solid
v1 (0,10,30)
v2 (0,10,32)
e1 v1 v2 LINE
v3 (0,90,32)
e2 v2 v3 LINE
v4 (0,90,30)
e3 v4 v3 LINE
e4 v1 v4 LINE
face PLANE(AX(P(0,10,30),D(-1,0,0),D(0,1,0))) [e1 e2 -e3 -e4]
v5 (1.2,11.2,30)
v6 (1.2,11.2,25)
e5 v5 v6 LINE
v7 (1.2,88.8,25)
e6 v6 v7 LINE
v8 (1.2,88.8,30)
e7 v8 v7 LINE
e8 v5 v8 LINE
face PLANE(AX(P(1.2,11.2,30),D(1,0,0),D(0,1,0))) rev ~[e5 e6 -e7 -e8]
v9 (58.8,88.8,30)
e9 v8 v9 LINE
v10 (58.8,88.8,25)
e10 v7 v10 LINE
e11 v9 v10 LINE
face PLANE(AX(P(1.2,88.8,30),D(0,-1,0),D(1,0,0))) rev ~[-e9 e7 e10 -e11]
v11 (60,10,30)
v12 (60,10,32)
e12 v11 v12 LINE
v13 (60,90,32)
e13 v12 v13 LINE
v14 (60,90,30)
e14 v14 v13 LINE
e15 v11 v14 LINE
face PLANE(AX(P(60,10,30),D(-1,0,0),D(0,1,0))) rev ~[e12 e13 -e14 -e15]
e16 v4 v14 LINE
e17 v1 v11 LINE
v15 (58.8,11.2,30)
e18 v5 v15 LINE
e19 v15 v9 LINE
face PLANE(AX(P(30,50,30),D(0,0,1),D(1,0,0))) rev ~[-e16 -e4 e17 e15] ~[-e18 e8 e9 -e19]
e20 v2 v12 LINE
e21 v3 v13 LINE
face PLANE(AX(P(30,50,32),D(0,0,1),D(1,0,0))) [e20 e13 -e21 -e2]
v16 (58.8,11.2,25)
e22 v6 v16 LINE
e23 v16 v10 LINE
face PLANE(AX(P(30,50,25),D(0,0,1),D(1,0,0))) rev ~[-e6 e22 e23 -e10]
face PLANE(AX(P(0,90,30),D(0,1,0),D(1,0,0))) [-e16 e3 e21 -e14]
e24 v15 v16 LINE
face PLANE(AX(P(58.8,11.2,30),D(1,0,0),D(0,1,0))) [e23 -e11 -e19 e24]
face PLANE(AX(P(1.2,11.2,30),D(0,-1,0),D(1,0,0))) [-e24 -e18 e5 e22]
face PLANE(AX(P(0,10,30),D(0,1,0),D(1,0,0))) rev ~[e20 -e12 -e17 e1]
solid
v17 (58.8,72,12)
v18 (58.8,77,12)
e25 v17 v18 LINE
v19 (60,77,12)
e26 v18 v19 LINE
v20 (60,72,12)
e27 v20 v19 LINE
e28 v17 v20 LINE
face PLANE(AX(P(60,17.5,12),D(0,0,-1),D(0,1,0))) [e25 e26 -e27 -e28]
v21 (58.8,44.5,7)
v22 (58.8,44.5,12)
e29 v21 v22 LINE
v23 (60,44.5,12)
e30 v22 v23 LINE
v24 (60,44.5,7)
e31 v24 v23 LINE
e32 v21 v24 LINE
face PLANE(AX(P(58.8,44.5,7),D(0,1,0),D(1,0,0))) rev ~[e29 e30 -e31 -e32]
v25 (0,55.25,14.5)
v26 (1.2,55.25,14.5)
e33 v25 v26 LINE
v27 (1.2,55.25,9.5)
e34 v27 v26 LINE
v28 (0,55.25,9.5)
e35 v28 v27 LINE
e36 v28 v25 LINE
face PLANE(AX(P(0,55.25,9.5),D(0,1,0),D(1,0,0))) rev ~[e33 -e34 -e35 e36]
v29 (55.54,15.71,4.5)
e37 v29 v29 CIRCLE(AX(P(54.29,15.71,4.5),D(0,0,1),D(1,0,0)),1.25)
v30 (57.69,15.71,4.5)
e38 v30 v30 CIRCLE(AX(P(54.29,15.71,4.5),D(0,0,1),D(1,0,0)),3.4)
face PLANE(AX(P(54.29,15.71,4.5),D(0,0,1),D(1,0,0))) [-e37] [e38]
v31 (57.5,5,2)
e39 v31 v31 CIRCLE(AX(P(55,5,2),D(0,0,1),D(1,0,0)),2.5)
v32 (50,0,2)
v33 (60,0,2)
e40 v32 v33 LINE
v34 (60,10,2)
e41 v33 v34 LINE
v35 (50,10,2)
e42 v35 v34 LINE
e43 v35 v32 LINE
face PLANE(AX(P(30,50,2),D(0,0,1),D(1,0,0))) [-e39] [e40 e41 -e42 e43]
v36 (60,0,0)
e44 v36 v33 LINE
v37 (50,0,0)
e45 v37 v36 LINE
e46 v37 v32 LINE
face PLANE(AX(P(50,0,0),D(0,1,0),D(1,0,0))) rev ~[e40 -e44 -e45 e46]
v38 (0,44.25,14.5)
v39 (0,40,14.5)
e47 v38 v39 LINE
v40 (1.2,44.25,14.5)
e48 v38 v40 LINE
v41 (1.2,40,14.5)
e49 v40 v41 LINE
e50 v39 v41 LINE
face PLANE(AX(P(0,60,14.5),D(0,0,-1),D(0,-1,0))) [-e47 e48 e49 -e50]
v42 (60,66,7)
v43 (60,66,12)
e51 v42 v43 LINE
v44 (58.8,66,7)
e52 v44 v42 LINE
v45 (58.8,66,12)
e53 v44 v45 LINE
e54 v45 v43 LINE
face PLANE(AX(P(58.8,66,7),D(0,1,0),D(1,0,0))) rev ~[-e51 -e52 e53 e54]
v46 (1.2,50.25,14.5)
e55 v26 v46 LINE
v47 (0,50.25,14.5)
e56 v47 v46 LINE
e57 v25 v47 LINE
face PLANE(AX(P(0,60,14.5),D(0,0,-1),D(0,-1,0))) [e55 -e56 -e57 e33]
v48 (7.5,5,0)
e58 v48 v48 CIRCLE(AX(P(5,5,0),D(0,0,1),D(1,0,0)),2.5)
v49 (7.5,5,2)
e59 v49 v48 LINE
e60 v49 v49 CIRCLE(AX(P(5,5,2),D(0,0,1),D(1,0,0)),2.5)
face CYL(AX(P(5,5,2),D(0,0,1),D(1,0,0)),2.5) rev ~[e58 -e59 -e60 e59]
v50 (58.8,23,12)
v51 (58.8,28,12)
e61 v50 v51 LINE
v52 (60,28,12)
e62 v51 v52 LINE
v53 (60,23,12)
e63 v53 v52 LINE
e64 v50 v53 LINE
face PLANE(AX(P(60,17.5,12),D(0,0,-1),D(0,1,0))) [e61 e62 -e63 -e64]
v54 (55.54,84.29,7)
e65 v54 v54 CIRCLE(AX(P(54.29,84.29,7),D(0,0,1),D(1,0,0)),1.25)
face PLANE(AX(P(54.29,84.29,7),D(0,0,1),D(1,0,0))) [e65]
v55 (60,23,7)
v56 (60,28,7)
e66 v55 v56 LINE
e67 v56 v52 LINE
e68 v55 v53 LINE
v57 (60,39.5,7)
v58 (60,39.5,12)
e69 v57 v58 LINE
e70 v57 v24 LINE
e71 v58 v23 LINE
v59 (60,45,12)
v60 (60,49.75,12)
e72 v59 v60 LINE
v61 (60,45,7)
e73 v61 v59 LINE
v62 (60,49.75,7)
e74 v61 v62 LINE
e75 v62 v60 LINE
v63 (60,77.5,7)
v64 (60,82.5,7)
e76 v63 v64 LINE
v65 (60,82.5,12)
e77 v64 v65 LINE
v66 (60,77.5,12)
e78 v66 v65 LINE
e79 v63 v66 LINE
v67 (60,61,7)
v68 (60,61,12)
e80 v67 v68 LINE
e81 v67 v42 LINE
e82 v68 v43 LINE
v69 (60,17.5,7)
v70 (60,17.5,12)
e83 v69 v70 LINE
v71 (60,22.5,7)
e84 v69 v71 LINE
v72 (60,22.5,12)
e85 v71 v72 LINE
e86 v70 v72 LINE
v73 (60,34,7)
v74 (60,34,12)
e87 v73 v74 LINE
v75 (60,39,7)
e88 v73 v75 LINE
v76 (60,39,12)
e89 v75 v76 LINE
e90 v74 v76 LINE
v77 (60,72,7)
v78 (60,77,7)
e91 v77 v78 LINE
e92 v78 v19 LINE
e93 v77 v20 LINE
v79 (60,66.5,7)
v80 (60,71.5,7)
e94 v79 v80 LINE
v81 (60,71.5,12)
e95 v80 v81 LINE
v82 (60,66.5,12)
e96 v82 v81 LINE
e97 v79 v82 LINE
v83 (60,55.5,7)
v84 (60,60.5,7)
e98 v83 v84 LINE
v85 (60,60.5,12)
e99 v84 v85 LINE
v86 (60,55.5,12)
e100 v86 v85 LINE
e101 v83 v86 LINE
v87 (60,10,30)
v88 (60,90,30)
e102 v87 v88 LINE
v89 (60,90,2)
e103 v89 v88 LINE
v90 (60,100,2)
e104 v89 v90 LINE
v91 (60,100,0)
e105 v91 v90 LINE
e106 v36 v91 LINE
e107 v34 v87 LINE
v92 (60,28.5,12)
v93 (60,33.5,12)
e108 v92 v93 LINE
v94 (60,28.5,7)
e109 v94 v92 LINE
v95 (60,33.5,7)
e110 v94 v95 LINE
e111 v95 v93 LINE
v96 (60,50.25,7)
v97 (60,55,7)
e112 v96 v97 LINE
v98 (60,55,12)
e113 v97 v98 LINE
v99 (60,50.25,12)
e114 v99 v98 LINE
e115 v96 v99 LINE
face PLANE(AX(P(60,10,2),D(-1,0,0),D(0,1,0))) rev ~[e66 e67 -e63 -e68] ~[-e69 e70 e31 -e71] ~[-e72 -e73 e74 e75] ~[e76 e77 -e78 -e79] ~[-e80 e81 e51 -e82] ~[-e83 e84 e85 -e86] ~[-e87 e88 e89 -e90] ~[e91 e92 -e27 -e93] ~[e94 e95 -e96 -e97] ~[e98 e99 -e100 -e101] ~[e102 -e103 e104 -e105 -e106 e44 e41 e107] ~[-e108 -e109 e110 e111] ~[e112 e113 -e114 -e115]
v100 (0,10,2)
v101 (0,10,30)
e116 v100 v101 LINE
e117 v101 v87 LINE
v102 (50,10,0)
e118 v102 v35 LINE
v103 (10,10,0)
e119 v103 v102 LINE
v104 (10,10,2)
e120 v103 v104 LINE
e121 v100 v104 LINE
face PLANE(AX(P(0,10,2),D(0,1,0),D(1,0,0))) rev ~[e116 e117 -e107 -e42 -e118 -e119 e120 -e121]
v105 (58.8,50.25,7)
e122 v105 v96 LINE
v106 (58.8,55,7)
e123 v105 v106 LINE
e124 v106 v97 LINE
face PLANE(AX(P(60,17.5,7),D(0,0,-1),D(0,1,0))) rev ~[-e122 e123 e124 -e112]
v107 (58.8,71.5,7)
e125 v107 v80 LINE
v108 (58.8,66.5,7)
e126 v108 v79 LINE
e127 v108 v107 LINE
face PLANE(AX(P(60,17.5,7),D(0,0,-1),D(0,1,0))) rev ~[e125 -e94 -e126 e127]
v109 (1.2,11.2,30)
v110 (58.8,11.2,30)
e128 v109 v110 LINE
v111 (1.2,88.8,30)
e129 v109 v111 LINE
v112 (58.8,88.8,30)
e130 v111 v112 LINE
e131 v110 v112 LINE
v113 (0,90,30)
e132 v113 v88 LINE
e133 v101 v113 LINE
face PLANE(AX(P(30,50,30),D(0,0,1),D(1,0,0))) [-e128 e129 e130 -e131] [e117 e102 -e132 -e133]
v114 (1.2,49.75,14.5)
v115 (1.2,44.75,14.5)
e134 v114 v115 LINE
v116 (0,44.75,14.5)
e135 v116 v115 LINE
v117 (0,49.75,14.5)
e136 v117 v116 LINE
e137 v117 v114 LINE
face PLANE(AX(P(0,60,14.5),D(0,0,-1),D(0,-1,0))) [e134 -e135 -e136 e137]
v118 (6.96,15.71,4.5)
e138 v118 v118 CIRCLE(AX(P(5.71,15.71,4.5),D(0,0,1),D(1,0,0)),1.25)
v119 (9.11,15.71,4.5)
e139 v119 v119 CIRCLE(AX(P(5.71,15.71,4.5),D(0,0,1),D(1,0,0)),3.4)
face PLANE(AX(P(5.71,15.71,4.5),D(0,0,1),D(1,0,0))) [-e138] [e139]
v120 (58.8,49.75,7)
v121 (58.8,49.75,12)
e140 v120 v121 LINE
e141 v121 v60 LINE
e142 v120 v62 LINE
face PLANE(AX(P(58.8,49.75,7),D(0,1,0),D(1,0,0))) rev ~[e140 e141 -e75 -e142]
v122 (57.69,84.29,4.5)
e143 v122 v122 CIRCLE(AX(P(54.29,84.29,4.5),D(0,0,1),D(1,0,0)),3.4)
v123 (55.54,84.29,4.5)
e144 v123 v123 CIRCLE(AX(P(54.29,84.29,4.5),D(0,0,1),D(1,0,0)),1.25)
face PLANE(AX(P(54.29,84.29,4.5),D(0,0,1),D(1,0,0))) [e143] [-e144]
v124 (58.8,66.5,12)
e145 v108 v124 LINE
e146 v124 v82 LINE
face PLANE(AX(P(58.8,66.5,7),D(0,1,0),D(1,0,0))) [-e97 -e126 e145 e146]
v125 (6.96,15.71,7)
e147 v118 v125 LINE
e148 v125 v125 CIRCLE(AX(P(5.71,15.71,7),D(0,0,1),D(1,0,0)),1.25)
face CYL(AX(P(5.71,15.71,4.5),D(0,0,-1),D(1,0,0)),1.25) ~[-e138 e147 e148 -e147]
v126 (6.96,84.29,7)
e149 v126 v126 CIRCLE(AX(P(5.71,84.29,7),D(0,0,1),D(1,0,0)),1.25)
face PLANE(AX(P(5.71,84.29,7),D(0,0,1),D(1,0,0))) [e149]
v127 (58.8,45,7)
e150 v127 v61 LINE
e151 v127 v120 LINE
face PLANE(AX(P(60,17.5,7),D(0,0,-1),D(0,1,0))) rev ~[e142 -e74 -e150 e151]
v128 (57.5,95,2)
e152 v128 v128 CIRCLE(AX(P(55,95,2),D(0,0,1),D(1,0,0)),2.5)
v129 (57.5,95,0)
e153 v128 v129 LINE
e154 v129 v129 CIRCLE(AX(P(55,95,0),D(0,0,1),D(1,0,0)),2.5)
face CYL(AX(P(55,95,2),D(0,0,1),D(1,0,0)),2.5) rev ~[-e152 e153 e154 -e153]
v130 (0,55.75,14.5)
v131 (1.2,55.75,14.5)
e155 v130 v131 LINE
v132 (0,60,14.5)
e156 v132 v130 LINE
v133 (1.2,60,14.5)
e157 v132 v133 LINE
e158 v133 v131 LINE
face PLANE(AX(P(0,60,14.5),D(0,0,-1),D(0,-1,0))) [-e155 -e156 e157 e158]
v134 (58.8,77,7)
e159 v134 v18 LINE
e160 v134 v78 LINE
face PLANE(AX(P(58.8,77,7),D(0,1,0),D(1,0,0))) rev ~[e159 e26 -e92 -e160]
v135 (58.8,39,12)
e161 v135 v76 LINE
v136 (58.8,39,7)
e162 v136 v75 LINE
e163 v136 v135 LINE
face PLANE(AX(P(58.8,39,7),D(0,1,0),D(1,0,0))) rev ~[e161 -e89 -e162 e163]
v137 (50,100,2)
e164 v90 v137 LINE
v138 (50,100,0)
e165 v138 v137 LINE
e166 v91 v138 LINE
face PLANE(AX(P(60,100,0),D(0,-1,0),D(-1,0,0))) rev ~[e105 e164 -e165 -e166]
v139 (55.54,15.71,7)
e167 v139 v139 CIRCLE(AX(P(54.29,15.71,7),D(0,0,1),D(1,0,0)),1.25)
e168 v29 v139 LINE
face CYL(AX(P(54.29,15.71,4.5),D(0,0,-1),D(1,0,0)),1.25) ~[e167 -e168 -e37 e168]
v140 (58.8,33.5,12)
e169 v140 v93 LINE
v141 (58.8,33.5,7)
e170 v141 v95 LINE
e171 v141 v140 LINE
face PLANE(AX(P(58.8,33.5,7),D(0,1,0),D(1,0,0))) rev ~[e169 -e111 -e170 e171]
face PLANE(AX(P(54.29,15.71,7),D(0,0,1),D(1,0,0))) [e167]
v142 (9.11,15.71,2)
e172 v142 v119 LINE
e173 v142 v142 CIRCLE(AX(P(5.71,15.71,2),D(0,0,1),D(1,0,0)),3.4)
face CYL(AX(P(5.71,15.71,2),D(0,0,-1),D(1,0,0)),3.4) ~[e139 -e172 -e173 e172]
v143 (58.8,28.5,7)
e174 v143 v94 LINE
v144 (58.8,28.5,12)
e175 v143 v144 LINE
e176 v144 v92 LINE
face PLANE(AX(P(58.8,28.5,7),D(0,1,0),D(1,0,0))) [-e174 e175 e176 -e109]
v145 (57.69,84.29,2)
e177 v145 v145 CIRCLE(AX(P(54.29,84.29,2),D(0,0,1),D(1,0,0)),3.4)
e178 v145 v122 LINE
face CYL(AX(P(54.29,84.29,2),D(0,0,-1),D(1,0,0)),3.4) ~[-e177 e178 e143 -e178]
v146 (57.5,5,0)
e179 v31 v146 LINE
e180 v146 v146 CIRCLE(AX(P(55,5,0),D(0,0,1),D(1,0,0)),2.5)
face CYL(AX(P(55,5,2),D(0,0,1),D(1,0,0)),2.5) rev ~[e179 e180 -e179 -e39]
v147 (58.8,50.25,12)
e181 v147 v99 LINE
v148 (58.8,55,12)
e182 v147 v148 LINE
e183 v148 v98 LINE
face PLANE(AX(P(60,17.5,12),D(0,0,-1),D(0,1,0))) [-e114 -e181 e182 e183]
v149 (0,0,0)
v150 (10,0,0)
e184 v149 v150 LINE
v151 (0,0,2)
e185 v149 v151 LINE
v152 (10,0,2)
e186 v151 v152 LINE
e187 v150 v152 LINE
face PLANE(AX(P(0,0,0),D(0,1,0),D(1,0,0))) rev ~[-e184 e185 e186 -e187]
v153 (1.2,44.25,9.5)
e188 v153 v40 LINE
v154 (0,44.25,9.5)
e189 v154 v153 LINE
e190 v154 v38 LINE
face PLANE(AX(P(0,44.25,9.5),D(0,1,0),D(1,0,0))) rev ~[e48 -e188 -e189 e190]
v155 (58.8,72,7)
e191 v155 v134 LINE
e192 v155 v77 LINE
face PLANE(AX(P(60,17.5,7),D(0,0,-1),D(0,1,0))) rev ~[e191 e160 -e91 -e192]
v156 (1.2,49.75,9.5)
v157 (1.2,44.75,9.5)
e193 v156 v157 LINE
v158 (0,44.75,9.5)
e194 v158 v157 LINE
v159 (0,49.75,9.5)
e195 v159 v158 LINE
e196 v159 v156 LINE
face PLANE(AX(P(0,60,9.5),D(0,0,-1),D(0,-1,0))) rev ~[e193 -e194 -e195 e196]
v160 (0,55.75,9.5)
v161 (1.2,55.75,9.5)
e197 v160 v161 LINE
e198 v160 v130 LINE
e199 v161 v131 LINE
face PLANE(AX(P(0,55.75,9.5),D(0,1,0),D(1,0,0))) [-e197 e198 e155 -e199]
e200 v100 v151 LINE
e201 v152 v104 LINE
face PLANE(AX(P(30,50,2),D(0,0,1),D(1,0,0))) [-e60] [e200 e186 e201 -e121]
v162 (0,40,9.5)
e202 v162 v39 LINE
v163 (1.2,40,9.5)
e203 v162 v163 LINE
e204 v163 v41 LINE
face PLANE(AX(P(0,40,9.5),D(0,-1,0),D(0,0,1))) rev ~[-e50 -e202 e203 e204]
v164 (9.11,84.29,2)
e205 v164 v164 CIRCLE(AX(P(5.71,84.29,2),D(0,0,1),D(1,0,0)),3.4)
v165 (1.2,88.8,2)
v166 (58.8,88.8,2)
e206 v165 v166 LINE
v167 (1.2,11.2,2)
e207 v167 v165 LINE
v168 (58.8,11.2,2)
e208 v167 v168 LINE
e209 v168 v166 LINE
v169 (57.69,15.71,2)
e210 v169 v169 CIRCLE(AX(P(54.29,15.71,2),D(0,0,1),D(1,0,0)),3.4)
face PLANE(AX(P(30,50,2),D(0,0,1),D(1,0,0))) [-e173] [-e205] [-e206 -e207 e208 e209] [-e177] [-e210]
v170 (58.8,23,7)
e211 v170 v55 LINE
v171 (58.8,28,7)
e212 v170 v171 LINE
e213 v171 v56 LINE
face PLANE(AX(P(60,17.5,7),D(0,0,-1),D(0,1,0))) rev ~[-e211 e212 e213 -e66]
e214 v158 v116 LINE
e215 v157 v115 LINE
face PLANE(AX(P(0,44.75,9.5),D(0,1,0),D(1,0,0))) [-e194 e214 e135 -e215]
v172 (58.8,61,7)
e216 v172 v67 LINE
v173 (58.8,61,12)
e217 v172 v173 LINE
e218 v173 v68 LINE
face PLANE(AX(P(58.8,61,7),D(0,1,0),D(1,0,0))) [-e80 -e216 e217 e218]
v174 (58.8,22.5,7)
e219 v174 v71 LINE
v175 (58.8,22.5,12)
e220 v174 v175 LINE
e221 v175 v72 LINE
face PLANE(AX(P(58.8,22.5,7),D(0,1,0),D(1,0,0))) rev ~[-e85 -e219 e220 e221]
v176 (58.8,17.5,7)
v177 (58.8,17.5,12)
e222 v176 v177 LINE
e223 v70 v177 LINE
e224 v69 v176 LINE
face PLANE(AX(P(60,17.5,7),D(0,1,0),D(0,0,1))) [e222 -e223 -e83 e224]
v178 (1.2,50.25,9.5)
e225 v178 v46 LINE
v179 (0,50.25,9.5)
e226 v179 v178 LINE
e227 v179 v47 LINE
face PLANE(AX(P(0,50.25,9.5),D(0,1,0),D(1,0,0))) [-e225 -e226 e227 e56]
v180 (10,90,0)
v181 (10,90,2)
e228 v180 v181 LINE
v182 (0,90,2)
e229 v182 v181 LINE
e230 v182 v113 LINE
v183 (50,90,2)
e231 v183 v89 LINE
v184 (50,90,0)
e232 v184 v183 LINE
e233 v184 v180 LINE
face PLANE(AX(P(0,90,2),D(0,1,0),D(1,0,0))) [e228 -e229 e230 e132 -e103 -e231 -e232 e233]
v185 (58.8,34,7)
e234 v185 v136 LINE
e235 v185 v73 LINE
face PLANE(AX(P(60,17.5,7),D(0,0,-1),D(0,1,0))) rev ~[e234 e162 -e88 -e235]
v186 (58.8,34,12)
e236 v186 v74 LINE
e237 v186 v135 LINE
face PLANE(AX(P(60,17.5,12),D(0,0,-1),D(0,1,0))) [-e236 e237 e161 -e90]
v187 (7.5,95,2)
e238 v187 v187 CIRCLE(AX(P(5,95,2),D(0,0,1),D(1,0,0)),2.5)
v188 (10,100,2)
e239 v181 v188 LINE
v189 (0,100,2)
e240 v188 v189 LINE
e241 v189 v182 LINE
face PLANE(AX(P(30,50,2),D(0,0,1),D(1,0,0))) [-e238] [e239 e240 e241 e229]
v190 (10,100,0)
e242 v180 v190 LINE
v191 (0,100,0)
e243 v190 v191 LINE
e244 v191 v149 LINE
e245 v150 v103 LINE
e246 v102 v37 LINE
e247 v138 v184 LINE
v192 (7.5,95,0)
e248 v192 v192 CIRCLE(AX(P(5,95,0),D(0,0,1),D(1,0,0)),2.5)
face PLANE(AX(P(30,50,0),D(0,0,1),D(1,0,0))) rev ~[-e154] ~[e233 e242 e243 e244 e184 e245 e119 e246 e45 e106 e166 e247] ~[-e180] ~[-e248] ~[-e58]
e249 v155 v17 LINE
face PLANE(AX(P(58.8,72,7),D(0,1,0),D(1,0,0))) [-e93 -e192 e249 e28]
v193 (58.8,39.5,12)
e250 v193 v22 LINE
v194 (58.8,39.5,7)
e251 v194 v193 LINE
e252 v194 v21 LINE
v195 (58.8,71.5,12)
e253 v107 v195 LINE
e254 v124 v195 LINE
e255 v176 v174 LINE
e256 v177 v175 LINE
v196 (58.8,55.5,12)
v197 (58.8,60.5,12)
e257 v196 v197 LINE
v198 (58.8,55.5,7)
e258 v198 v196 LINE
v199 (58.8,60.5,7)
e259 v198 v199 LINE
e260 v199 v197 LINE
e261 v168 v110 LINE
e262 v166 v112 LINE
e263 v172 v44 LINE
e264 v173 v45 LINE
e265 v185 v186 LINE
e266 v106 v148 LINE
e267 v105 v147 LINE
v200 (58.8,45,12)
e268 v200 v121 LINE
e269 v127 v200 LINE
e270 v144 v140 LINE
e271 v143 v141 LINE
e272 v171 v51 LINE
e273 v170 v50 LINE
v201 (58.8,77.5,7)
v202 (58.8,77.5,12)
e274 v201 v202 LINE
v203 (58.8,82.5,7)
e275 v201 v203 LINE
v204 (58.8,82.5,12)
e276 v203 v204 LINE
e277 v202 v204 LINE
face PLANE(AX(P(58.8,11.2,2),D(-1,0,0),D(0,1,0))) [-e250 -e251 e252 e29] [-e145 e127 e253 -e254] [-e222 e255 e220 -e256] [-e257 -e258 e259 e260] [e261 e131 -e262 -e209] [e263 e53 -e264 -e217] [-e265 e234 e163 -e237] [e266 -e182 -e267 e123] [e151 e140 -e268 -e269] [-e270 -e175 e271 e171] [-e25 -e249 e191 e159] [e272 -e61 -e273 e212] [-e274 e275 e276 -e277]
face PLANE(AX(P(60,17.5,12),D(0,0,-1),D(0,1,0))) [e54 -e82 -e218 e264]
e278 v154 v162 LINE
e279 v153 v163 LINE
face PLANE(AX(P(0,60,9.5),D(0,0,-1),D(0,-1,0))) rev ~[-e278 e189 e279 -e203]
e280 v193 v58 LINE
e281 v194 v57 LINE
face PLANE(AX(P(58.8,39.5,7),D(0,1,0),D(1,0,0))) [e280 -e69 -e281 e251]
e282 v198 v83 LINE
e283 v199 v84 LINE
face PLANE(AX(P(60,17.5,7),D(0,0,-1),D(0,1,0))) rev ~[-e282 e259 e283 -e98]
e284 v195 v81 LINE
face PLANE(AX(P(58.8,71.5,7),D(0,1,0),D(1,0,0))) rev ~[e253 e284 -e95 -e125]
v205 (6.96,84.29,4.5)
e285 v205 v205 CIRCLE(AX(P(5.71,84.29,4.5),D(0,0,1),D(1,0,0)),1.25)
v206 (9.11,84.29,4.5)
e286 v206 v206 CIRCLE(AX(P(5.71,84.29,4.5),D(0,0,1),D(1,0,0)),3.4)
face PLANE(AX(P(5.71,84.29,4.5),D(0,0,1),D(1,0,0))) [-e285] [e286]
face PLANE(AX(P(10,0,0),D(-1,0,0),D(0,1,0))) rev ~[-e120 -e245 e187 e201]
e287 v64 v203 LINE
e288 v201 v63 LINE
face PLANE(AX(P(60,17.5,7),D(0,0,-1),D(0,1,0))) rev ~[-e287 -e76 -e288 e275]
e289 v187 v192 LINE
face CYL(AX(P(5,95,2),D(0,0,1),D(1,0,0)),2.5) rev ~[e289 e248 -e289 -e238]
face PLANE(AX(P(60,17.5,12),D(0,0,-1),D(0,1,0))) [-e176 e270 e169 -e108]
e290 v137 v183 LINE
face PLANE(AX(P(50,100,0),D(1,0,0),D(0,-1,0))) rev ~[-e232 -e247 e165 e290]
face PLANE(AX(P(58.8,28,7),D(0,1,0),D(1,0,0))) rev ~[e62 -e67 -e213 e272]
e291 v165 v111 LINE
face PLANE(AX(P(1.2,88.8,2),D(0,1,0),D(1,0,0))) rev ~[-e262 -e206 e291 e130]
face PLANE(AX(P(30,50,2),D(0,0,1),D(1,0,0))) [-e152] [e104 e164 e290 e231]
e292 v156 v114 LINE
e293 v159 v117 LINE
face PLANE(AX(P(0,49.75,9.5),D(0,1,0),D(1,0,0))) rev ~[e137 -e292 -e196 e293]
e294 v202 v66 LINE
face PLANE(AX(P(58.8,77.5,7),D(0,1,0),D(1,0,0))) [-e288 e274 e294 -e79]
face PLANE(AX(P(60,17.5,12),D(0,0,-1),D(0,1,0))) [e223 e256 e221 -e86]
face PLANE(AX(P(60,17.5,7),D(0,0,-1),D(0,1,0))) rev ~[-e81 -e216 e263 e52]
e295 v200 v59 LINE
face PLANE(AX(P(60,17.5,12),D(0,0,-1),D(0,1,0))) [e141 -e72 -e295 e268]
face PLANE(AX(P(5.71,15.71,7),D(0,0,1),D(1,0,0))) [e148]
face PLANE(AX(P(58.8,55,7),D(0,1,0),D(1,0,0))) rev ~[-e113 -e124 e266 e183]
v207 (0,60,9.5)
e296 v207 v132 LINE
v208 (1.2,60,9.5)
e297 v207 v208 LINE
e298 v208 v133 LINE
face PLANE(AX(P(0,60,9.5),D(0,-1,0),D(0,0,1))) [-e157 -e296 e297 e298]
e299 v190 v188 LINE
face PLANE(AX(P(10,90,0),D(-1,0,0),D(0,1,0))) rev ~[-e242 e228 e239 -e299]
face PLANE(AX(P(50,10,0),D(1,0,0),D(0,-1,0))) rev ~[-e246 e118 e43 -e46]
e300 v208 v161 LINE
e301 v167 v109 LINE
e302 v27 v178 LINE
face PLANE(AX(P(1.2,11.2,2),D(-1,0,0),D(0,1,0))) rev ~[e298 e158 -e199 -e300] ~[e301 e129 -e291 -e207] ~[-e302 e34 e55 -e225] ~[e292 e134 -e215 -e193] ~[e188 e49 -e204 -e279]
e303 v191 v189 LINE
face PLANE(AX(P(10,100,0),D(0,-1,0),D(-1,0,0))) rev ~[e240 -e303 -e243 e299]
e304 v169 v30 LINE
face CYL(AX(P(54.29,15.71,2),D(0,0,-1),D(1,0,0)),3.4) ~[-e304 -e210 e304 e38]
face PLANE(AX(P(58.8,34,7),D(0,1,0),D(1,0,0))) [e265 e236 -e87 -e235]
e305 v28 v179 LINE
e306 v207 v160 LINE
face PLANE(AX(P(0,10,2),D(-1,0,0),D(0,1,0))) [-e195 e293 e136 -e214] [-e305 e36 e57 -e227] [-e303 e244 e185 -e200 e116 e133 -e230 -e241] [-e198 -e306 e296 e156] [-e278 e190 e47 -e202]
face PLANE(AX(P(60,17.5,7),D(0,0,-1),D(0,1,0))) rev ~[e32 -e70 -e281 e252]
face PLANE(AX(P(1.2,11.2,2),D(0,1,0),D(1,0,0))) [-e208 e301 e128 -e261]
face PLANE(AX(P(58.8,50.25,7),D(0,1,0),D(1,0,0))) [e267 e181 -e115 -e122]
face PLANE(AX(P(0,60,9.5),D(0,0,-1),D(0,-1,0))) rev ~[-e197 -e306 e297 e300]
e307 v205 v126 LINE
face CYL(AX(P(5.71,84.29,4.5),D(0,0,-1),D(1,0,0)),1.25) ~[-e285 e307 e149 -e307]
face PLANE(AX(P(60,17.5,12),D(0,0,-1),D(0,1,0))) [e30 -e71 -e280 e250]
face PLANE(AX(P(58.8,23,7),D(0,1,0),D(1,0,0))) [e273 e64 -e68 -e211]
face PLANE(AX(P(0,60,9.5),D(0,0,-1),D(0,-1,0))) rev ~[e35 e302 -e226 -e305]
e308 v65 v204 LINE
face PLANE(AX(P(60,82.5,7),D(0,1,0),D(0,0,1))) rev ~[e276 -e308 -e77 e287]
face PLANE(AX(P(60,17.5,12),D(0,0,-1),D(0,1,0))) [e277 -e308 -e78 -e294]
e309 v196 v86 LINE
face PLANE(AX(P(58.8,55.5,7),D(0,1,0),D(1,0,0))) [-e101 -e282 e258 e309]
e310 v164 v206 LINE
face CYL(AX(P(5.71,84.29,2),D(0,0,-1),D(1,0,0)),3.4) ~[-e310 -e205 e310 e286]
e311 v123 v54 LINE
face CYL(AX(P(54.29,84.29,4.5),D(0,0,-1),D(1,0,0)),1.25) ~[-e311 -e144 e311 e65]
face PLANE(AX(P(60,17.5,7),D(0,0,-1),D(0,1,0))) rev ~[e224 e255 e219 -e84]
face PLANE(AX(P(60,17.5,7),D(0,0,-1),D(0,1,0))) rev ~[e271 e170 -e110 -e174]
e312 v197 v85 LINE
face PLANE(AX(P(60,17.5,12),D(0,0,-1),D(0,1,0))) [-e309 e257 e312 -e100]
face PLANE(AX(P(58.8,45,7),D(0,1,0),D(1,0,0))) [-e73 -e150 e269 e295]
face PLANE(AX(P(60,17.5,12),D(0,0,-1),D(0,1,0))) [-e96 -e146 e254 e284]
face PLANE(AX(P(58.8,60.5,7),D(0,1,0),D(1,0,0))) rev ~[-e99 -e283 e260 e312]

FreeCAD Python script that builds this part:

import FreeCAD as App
import Part
import Sketcher
from FreeCAD import Vector

doc = App.newDocument("Part")
params = doc.addObject("Spreadsheet::Sheet", "Params")
for row, (alias, value) in enumerate([
    ("sketch1_width", "10 mm"),
    ("sketch1_width2", "40 mm"),
    ("sketch1_height", "100 mm"),
    ("pad1_length", "2 mm"),
    ("sketch2_width", "60 mm"),
    ("sketch2_height", "80 mm"),
    ("sketch2_width2", "57.6 mm"),
    ("sketch2_height2", "77.6 mm"),
    ("pad2_length", "28 mm"),
    ("sketch3_diameter", "5 mm"),
    ("sketch4_diameter", "6.8 mm"),
    ("pad3_length", "2.5 mm"),
    ("sketch5_diameter", "2.5 mm"),
    ("pad4_length", "2.5 mm"),
    ("sketch6_width", "65 mm"),
    ("sketch6_height", "5 mm"),
    ("pocket2_length", "1.2 mm"),
    ("sketch7_width", "1.2 mm"),
    ("sketch7_height", "0.5 mm"),
    ("sketch8_width", "20 mm"),
    ("sketch8_height", "5 mm"),
    ("pocket3_length", "1.2 mm"),
    ("sketch9_width", "1.2 mm"),
    ("sketch9_height", "0.5 mm"),
    ("sketch10_width", "60 mm"),
    ("sketch10_height", "80 mm"),
    ("pad7_length", "2 mm"),
    ("sketch11_width", "57.6 mm"),
    ("sketch11_height", "77.6 mm"),
    ("pad8_length", "5 mm"),
], start=1):
    params.set(f"A{row}", alias)
    params.set(f"B{row}", "=" + value)
    params.setAlias(f"B{row}", alias)

body = doc.addObject("PartDesign::Body", "Body")

# Sketch on XY plane
sketch1 = body.newObject("Sketcher::SketchObject", "Sketch")
sketch1.AttachmentSupport = (doc.getObject("XY_Plane"), [""])
sketch1.MapMode = "FlatFace"
sketch1.addGeometry([
    Part.LineSegment(Vector(0, 100, 0), Vector(0, 0, 0)),  # 0
    Part.LineSegment(Vector(0, 0, 0), Vector(10, 0, 0)),  # 1
    Part.LineSegment(Vector(10, 0, 0), Vector(10, 10, 0)),  # 2
    Part.LineSegment(Vector(10, 10, 0), Vector(50, 10, 0)),  # 3
    Part.LineSegment(Vector(50, 10, 0), Vector(50, 0, 0)),  # 4
    Part.LineSegment(Vector(50, 0, 0), Vector(60, 0, 0)),  # 5
    Part.LineSegment(Vector(60, 0, 0), Vector(60, 100, 0)),  # 6
    Part.LineSegment(Vector(60, 100, 0), Vector(50, 100, 0)),  # 7
    Part.LineSegment(Vector(50, 100, 0), Vector(50, 90, 0)),  # 8
    Part.LineSegment(Vector(50, 90, 0), Vector(10, 90, 0)),  # 9
    Part.LineSegment(Vector(10, 90, 0), Vector(10, 100, 0)),  # 10
    Part.LineSegment(Vector(10, 100, 0), Vector(0, 100, 0)),  # 11
], False)
sketch1.addConstraint([
    Sketcher.Constraint("Coincident", 0, 2, 1, 1),
    Sketcher.Constraint("Coincident", 1, 2, 2, 1),
    Sketcher.Constraint("Coincident", 2, 2, 3, 1),
    Sketcher.Constraint("Coincident", 3, 2, 4, 1),
    Sketcher.Constraint("Coincident", 4, 2, 5, 1),
    Sketcher.Constraint("Coincident", 5, 2, 6, 1),
    Sketcher.Constraint("Coincident", 6, 2, 7, 1),
    Sketcher.Constraint("Coincident", 7, 2, 8, 1),
    Sketcher.Constraint("Coincident", 8, 2, 9, 1),
    Sketcher.Constraint("Coincident", 9, 2, 10, 1),
    Sketcher.Constraint("Coincident", 10, 2, 11, 1),
    Sketcher.Constraint("Coincident", 11, 2, 0, 1),
    Sketcher.Constraint("Vertical", 0),
    Sketcher.Constraint("Horizontal", 1),
    Sketcher.Constraint("Vertical", 2),
    Sketcher.Constraint("Horizontal", 3),
    Sketcher.Constraint("Vertical", 4),
    Sketcher.Constraint("Horizontal", 5),
    Sketcher.Constraint("Vertical", 6),
    Sketcher.Constraint("Horizontal", 7),
    Sketcher.Constraint("Vertical", 8),
    Sketcher.Constraint("Horizontal", 9),
    Sketcher.Constraint("Vertical", 10),
    Sketcher.Constraint("Horizontal", 11),
    Sketcher.Constraint("Coincident", 0, 2, -1, 1),
    Sketcher.Constraint("PointOnObject", 4, 2, -1),
    Sketcher.Constraint("Horizontal", 7, 2, 10, 2),
    Sketcher.Constraint("Vertical", 4, 2, 7, 2),
    Sketcher.Constraint("Vertical", 2, 2, 9, 2),
    Sketcher.Constraint("Equal", 1, 5),
    Sketcher.Constraint("Equal", 11, 2),
    Sketcher.Constraint("Equal", 4, 8),
    Sketcher.Constraint("DistanceX", 1, 1, 1, 2, 10.0),
    Sketcher.Constraint("DistanceX", 3, 1, 3, 2, 40.0),
    Sketcher.Constraint("DistanceY", 0, 2, 0, 1, 100.0),
])
sketch1.setExpression("Constraints[32]", "Params.sketch1_width")
sketch1.setExpression("Constraints[33]", "Params.sketch1_width2")
sketch1.setExpression("Constraints[34]", "Params.sketch1_height")
pad1 = body.newObject("PartDesign::Pad", "Pad")
pad1.Profile = sketch1
pad1.setExpression("Length", "Params.pad1_length")

# Sketch on XY plane
sketch2 = body.newObject("Sketcher::SketchObject", "Sketch001")
sketch2.AttachmentSupport = (doc.getObject("XY_Plane"), [""])
sketch2.MapMode = "FlatFace"
sketch2.AttachmentOffset = App.Placement(Vector(0, 0, 2), App.Rotation())
sketch2.addGeometry([
    Part.LineSegment(Vector(0, 90, 0), Vector(0, 10, 0)),  # 0
    Part.LineSegment(Vector(0, 10, 0), Vector(60, 10, 0)),  # 1
    Part.LineSegment(Vector(60, 10, 0), Vector(60, 90, 0)),  # 2
    Part.LineSegment(Vector(60, 90, 0), Vector(0, 90, 0)),  # 3
    Part.LineSegment(Vector(59, 11, 0), Vector(1, 11, 0)),  # 4
    Part.LineSegment(Vector(1, 11, 0), Vector(1, 89, 0)),  # 5
    Part.LineSegment(Vector(1, 89, 0), Vector(59, 89, 0)),  # 6
    Part.LineSegment(Vector(59, 89, 0), Vector(59, 11, 0)),  # 7
], False)
sketch2.addConstraint([
    Sketcher.Constraint("Coincident", 0, 2, 1, 1),
    Sketcher.Constraint("Coincident", 1, 2, 2, 1),
    Sketcher.Constraint("Coincident", 2, 2, 3, 1),
    Sketcher.Constraint("Coincident", 3, 2, 0, 1),
    Sketcher.Constraint("Coincident", 4, 2, 5, 1),
    Sketcher.Constraint("Coincident", 5, 2, 6, 1),
    Sketcher.Constraint("Coincident", 6, 2, 7, 1),
    Sketcher.Constraint("Coincident", 7, 2, 4, 1),
    Sketcher.Constraint("Vertical", 0),
    Sketcher.Constraint("Horizontal", 1),
    Sketcher.Constraint("Vertical", 2),
    Sketcher.Constraint("Horizontal", 3),
    Sketcher.Constraint("Horizontal", 4),
    Sketcher.Constraint("Vertical", 5),
    Sketcher.Constraint("Horizontal", 6),
    Sketcher.Constraint("Vertical", 7),
    Sketcher.Constraint("PointOnObject", 0, 2, -2),
    Sketcher.Constraint("DistanceX", 1, 1, 1, 2, 60.0),
    Sketcher.Constraint("DistanceY", 0, 2, 0, 1, 80.0),
    Sketcher.Constraint("DistanceX", 4, 2, 4, 1, 57.6),
    Sketcher.Constraint("DistanceY", 5, 1, 5, 2, 77.6),
    Sketcher.Constraint("DistanceY", -1, 1, 0, 2, 10.0),
    Sketcher.Constraint("DistanceX", -1, 1, 4, 2, 1.2),
    Sketcher.Constraint("DistanceY", -1, 1, 4, 2, 11.2),
])
sketch2.setExpression("Constraints[17]", "Params.sketch2_width")
sketch2.setExpression("Constraints[18]", "Params.sketch2_height")
sketch2.setExpression("Constraints[19]", "Params.sketch2_width2")
sketch2.setExpression("Constraints[20]", "Params.sketch2_height2")
pad2 = body.newObject("PartDesign::Pad", "Pad001")
pad2.Profile = sketch2
pad2.setExpression("Length", "Params.pad2_length")

# Sketch on XY plane
sketch3 = body.newObject("Sketcher::SketchObject", "Sketch002")
sketch3.AttachmentSupport = (doc.getObject("XY_Plane"), [""])
sketch3.MapMode = "FlatFace"
sketch3.AttachmentOffset = App.Placement(Vector(0, 0, 2), App.Rotation())
sketch3.addGeometry([
    Part.Circle(Vector(5, 95, 0), Vector(0, 0, 1), 2.5),
    Part.Circle(Vector(55, 95, 0), Vector(0, 0, 1), 2.5),
    Part.Circle(Vector(55, 5, 0), Vector(0, 0, 1), 2.5),
    Part.Circle(Vector(5, 5, 0), Vector(0, 0, 1), 2.5),
], False)
sketch3.addConstraint([
    Sketcher.Constraint("Equal", 0, 1),
    Sketcher.Constraint("Equal", 1, 2),
    Sketcher.Constraint("Equal", 2, 3),
    Sketcher.Constraint("Horizontal", 0, 3, 1, 3),
    Sketcher.Constraint("Horizontal", 2, 3, 3, 3),
    Sketcher.Constraint("Vertical", 1, 3, 2, 3),
    Sketcher.Constraint("Vertical", 0, 3, 3, 3),
    Sketcher.Constraint("Diameter", 0, 5.0),
    Sketcher.Constraint("DistanceX", -1, 1, 0, 3, 5.0),
    Sketcher.Constraint("DistanceY", -1, 1, 0, 3, 95.0),
    Sketcher.Constraint("DistanceX", -1, 1, 1, 3, 55.0),
    Sketcher.Constraint("DistanceY", -1, 1, 2, 3, 5.0),
])
sketch3.setExpression("Constraints[7]", "Params.sketch3_diameter")
pocket1 = body.newObject("PartDesign::Pocket", "Pocket")
pocket1.Profile = sketch3
pocket1.Type = "ThroughAll"

# Sketch on XY plane
sketch4 = body.newObject("Sketcher::SketchObject", "Sketch003")
sketch4.AttachmentSupport = (doc.getObject("XY_Plane"), [""])
sketch4.MapMode = "FlatFace"
sketch4.AttachmentOffset = App.Placement(Vector(0, 0, 2), App.Rotation())
sketch4.addGeometry([
    Part.Circle(Vector(5.7, 15.7, 0), Vector(0, 0, 1), 3.4),
    Part.Circle(Vector(5.7, 84.3, 0), Vector(0, 0, 1), 3.4),
    Part.Circle(Vector(54.3, 15.7, 0), Vector(0, 0, 1), 3.4),
    Part.Circle(Vector(54.3, 84.3, 0), Vector(0, 0, 1), 3.4),
], False)
sketch4.addConstraint([
    Sketcher.Constraint("Equal", 0, 1),
    Sketcher.Constraint("Equal", 1, 2),
    Sketcher.Constraint("Equal", 2, 3),
    Sketcher.Constraint("Horizontal", 0, 3, 2, 3),
    Sketcher.Constraint("Horizontal", 1, 3, 3, 3),
    Sketcher.Constraint("Vertical", 0, 3, 1, 3),
    Sketcher.Constraint("Vertical", 2, 3, 3, 3),
    Sketcher.Constraint("Diameter", 0, 6.8),
    Sketcher.Constraint("DistanceX", -1, 1, 0, 3, 5.71),
    Sketcher.Constraint("DistanceY", -1, 1, 0, 3, 15.71),
    Sketcher.Constraint("DistanceY", -1, 1, 1, 3, 84.29),
    Sketcher.Constraint("DistanceX", -1, 1, 2, 3, 54.29),
])
sketch4.setExpression("Constraints[7]", "Params.sketch4_diameter")
pad3 = body.newObject("PartDesign::Pad", "Pad002")
pad3.Profile = sketch4
pad3.setExpression("Length", "Params.pad3_length")

# Sketch on XY plane
sketch5 = body.newObject("Sketcher::SketchObject", "Sketch004")
sketch5.AttachmentSupport = (doc.getObject("XY_Plane"), [""])
sketch5.MapMode = "FlatFace"
sketch5.AttachmentOffset = App.Placement(Vector(0, 0, 4.5), App.Rotation())
sketch5.addGeometry([
    Part.Circle(Vector(5.7, 84.3, 0), Vector(0, 0, 1), 1.2),
    Part.Circle(Vector(54.3, 84.3, 0), Vector(0, 0, 1), 1.2),
    Part.Circle(Vector(5.7, 15.7, 0), Vector(0, 0, 1), 1.2),
    Part.Circle(Vector(54.3, 15.7, 0), Vector(0, 0, 1), 1.2),
], False)
sketch5.addConstraint([
    Sketcher.Constraint("Equal", 0, 1),
    Sketcher.Constraint("Equal", 1, 2),
    Sketcher.Constraint("Equal", 2, 3),
    Sketcher.Constraint("Horizontal", 0, 3, 1, 3),
    Sketcher.Constraint("Horizontal", 2, 3, 3, 3),
    Sketcher.Constraint("Vertical", 0, 3, 2, 3),
    Sketcher.Constraint("Vertical", 1, 3, 3, 3),
    Sketcher.Constraint("Diameter", 0, 2.5),
    Sketcher.Constraint("DistanceX", -1, 1, 0, 3, 5.71),
    Sketcher.Constraint("DistanceY", -1, 1, 0, 3, 84.29),
    Sketcher.Constraint("DistanceX", -1, 1, 1, 3, 54.29),
    Sketcher.Constraint("DistanceY", -1, 1, 2, 3, 15.71),
])
sketch5.setExpression("Constraints[7]", "Params.sketch5_diameter")
pad4 = body.newObject("PartDesign::Pad", "Pad003")
pad4.Profile = sketch5
pad4.setExpression("Length", "Params.pad4_length")

# Sketch on YZ plane
sketch6 = body.newObject("Sketcher::SketchObject", "Sketch005")
sketch6.AttachmentSupport = (doc.getObject("YZ_Plane"), [""])
sketch6.MapMode = "FlatFace"
sketch6.AttachmentOffset = App.Placement(Vector(0, 0, 60), App.Rotation())
sketch6.addGeometry([
    Part.LineSegment(Vector(18, 12, 0), Vector(18, 7, 0)),
    Part.LineSegment(Vector(18, 7, 0), Vector(82, 7, 0)),
    Part.LineSegment(Vector(82, 7, 0), Vector(82, 12, 0)),
    Part.LineSegment(Vector(82, 12, 0), Vector(18, 12, 0)),
], False)
sketch6.addConstraint([
    Sketcher.Constraint("Coincident", 0, 2, 1, 1),
    Sketcher.Constraint("Coincident", 1, 2, 2, 1),
    Sketcher.Constraint("Coincident", 2, 2, 3, 1),
    Sketcher.Constraint("Coincident", 3, 2, 0, 1),
    Sketcher.Constraint("Vertical", 0),
    Sketcher.Constraint("Horizontal", 1),
    Sketcher.Constraint("Vertical", 2),
    Sketcher.Constraint("Horizontal", 3),
    Sketcher.Constraint("DistanceX", 1, 1, 1, 2, 65.0),
    Sketcher.Constraint("DistanceY", 0, 2, 0, 1, 5.0),
    Sketcher.Constraint("DistanceY", -1, 1, 0, 2, 7.0),
    Sketcher.Constraint("DistanceX", -1, 1, 0, 2, 17.5),
])
sketch6.setExpression("Constraints[8]", "Params.sketch6_width")
sketch6.setExpression("Constraints[9]", "Params.sketch6_height")
pocket2 = body.newObject("PartDesign::Pocket", "Pocket001")
pocket2.Profile = sketch6
pocket2.setExpression("Length", "Params.pocket2_length")

# Sketch on XY plane
sketch7 = body.newObject("Sketcher::SketchObject", "Sketch006")
sketch7.AttachmentSupport = (doc.getObject("XY_Plane"), [""])
sketch7.MapMode = "FlatFace"
sketch7.AttachmentOffset = App.Placement(Vector(0, 0, 7), App.Rotation())
sketch7.addGeometry([
    Part.LineSegment(Vector(58.8, 50.2, 0), Vector(58.8, 49.8, 0)),  # 0
    Part.LineSegment(Vector(58.8, 49.8, 0), Vector(60, 49.8, 0)),  # 1
    Part.LineSegment(Vector(60, 49.8, 0), Vector(60, 50.2, 0)),  # 2
    Part.LineSegment(Vector(60, 50.2, 0), Vector(58.8, 50.2, 0)),  # 3
    Part.LineSegment(Vector(58.8, 45, 0), Vector(58.8, 44.5, 0)),  # 4
    Part.LineSegment(Vector(58.8, 44.5, 0), Vector(60, 44.5, 0)),  # 5
    Part.LineSegment(Vector(60, 44.5, 0), Vector(60, 45, 0)),  # 6
    Part.LineSegment(Vector(60, 45, 0), Vector(58.8, 45, 0)),  # 7
    Part.LineSegment(Vector(58.8, 39.5, 0), Vector(58.8, 39, 0)),  # 8
    Part.LineSegment(Vector(58.8, 39, 0), Vector(60, 39, 0)),  # 9
    Part.LineSegment(Vector(60, 39, 0), Vector(60, 39.5, 0)),  # 10
    Part.LineSegment(Vector(60, 39.5, 0), Vector(58.8, 39.5, 0)),  # 11
    Part.LineSegment(Vector(58.8, 34, 0), Vector(58.8, 33.5, 0)),  # 12
    Part.LineSegment(Vector(58.8, 33.5, 0), Vector(60, 33.5, 0)),  # 13
    Part.LineSegment(Vector(60, 33.5, 0), Vector(60, 34, 0)),  # 14
    Part.LineSegment(Vector(60, 34, 0), Vector(58.8, 34, 0)),  # 15
    Part.LineSegment(Vector(58.8, 28.5, 0), Vector(58.8, 28, 0)),  # 16
    Part.LineSegment(Vector(58.8, 28, 0), Vector(60, 28, 0)),  # 17
    Part.LineSegment(Vector(60, 28, 0), Vector(60, 28.5, 0)),  # 18
    Part.LineSegment(Vector(60, 28.5, 0), Vector(58.8, 28.5, 0)),  # 19
    Part.LineSegment(Vector(58.8, 23, 0), Vector(58.8, 22.5, 0)),  # 20
    Part.LineSegment(Vector(58.8, 22.5, 0), Vector(60, 22.5, 0)),  # 21
    Part.LineSegment(Vector(60, 22.5, 0), Vector(60, 23, 0)),  # 22
    Part.LineSegment(Vector(60, 23, 0), Vector(58.8, 23, 0)),  # 23
    Part.LineSegment(Vector(58.8, 61, 0), Vector(58.8, 60.5, 0)),  # 24
    Part.LineSegment(Vector(58.8, 60.5, 0), Vector(60, 60.5, 0)),  # 25
    Part.LineSegment(Vector(60, 60.5, 0), Vector(60, 61, 0)),  # 26
    Part.LineSegment(Vector(60, 61, 0), Vector(58.8, 61, 0)),  # 27
    Part.LineSegment(Vector(58.8, 55.5, 0), Vector(58.8, 55, 0)),  # 28
    Part.LineSegment(Vector(58.8, 55, 0), Vector(60, 55, 0)),  # 29
    Part.LineSegment(Vector(60, 55, 0), Vector(60, 55.5, 0)),  # 30
    Part.LineSegment(Vector(60, 55.5, 0), Vector(58.8, 55.5, 0)),  # 31
    Part.LineSegment(Vector(58.8, 66.5, 0), Vector(58.8, 66, 0)),  # 32
    Part.LineSegment(Vector(58.8, 66, 0), Vector(60, 66, 0)),  # 33
    Part.LineSegment(Vector(60, 66, 0), Vector(60, 66.5, 0)),  # 34
    Part.LineSegment(Vector(60, 66.5, 0), Vector(58.8, 66.5, 0)),  # 35
    Part.LineSegment(Vector(58.8, 72, 0), Vector(58.8, 71.5, 0)),  # 36
    Part.LineSegment(Vector(58.8, 71.5, 0), Vector(60, 71.5, 0)),  # 37
    Part.LineSegment(Vector(60, 71.5, 0), Vector(60, 72, 0)),  # 38
    Part.LineSegment(Vector(60, 72, 0), Vector(58.8, 72, 0)),  # 39
    Part.LineSegment(Vector(58.8, 77.5, 0), Vector(58.8, 77, 0)),  # 40
    Part.LineSegment(Vector(58.8, 77, 0), Vector(60, 77, 0)),  # 41
    Part.LineSegment(Vector(60, 77, 0), Vector(60, 77.5, 0)),  # 42
    Part.LineSegment(Vector(60, 77.5, 0), Vector(58.8, 77.5, 0)),  # 43
], False)
sketch7.addConstraint([
    Sketcher.Constraint("Coincident", 0, 2, 1, 1),
    Sketcher.Constraint("Coincident", 1, 2, 2, 1),
    Sketcher.Constraint("Coincident", 2, 2, 3, 1),
    Sketcher.Constraint("Coincident", 3, 2, 0, 1),
    Sketcher.Constraint("Coincident", 4, 2, 5, 1),
    Sketcher.Constraint("Coincident", 5, 2, 6, 1),
    Sketcher.Constraint("Coincident", 6, 2, 7, 1),
    Sketcher.Constraint("Coincident", 7, 2, 4, 1),
    Sketcher.Constraint("Coincident", 8, 2, 9, 1),
    Sketcher.Constraint("Coincident", 9, 2, 10, 1),
    Sketcher.Constraint("Coincident", 10, 2, 11, 1),
    Sketcher.Constraint("Coincident", 11, 2, 8, 1),
    Sketcher.Constraint("Coincident", 12, 2, 13, 1),
    Sketcher.Constraint("Coincident", 13, 2, 14, 1),
    Sketcher.Constraint("Coincident", 14, 2, 15, 1),
    Sketcher.Constraint("Coincident", 15, 2, 12, 1),
    Sketcher.Constraint("Coincident", 16, 2, 17, 1),
    Sketcher.Constraint("Coincident", 17, 2, 18, 1),
    Sketcher.Constraint("Coincident", 18, 2, 19, 1),
    Sketcher.Constraint("Coincident", 19, 2, 16, 1),
    Sketcher.Constraint("Coincident", 20, 2, 21, 1),
    Sketcher.Constraint("Coincident", 21, 2, 22, 1),
    Sketcher.Constraint("Coincident", 22, 2, 23, 1),
    Sketcher.Constraint("Coincident", 23, 2, 20, 1),
    Sketcher.Constraint("Coincident", 24, 2, 25, 1),
    Sketcher.Constraint("Coincident", 25, 2, 26, 1),
    Sketcher.Constraint("Coincident", 26, 2, 27, 1),
    Sketcher.Constraint("Coincident", 27, 2, 24, 1),
    Sketcher.Constraint("Coincident", 28, 2, 29, 1),
    Sketcher.Constraint("Coincident", 29, 2, 30, 1),
    Sketcher.Constraint("Coincident", 30, 2, 31, 1),
    Sketcher.Constraint("Coincident", 31, 2, 28, 1),
    Sketcher.Constraint("Coincident", 32, 2, 33, 1),
    Sketcher.Constraint("Coincident", 33, 2, 34, 1),
    Sketcher.Constraint("Coincident", 34, 2, 35, 1),
    Sketcher.Constraint("Coincident", 35, 2, 32, 1),
    Sketcher.Constraint("Coincident", 36, 2, 37, 1),
    Sketcher.Constraint("Coincident", 37, 2, 38, 1),
    Sketcher.Constraint("Coincident", 38, 2, 39, 1),
    Sketcher.Constraint("Coincident", 39, 2, 36, 1),
    Sketcher.Constraint("Coincident", 40, 2, 41, 1),
    Sketcher.Constraint("Coincident", 41, 2, 42, 1),
    Sketcher.Constraint("Coincident", 42, 2, 43, 1),
    Sketcher.Constraint("Coincident", 43, 2, 40, 1),
    Sketcher.Constraint("Vertical", 0),
    Sketcher.Constraint("Horizontal", 1),
    Sketcher.Constraint("Vertical", 2),
    Sketcher.Constraint("Horizontal", 3),
    Sketcher.Constraint("Vertical", 4),
    Sketcher.Constraint("Horizontal", 5),
    Sketcher.Constraint("Vertical", 6),
    Sketcher.Constraint("Horizontal", 7),
    Sketcher.Constraint("Vertical", 8),
    Sketcher.Constraint("Horizontal", 9),
    Sketcher.Constraint("Vertical", 10),
    Sketcher.Constraint("Horizontal", 11),
    Sketcher.Constraint("Vertical", 12),
    Sketcher.Constraint("Horizontal", 13),
    Sketcher.Constraint("Vertical", 14),
    Sketcher.Constraint("Horizontal", 15),
    Sketcher.Constraint("Vertical", 16),
    Sketcher.Constraint("Horizontal", 17),
    Sketcher.Constraint("Vertical", 18),
    Sketcher.Constraint("Horizontal", 19),
    Sketcher.Constraint("Vertical", 20),
    Sketcher.Constraint("Horizontal", 21),
    Sketcher.Constraint("Vertical", 22),
    Sketcher.Constraint("Horizontal", 23),
    Sketcher.Constraint("Vertical", 24),
    Sketcher.Constraint("Horizontal", 25),
    Sketcher.Constraint("Vertical", 26),
    Sketcher.Constraint("Horizontal", 27),
    Sketcher.Constraint("Vertical", 28),
    Sketcher.Constraint("Horizontal", 29),
    Sketcher.Constraint("Vertical", 30),
    Sketcher.Constraint("Horizontal", 31),
    Sketcher.Constraint("Vertical", 32),
    Sketcher.Constraint("Horizontal", 33),
    Sketcher.Constraint("Vertical", 34),
    Sketcher.Constraint("Horizontal", 35),
    Sketcher.Constraint("Vertical", 36),
    Sketcher.Constraint("Horizontal", 37),
    Sketcher.Constraint("Vertical", 38),
    Sketcher.Constraint("Horizontal", 39),
    Sketcher.Constraint("Vertical", 40),
    Sketcher.Constraint("Horizontal", 41),
    Sketcher.Constraint("Vertical", 42),
    Sketcher.Constraint("Horizontal", 43),
    Sketcher.Constraint("Vertical", 3, 2, 4, 2),
    Sketcher.Constraint("Vertical", 2, 2, 5, 2),
    Sketcher.Constraint("Vertical", 7, 2, 8, 2),
    Sketcher.Constraint("Vertical", 6, 2, 9, 2),
    Sketcher.Constraint("Vertical", 11, 2, 12, 2),
    Sketcher.Constraint("Vertical", 10, 2, 13, 2),
    Sketcher.Constraint("Vertical", 15, 2, 16, 2),
    Sketcher.Constraint("Vertical", 14, 2, 17, 2),
    Sketcher.Constraint("Vertical", 19, 2, 20, 2),
    Sketcher.Constraint("Vertical", 18, 2, 21, 2),
    Sketcher.Constraint("Vertical", 23, 2, 24, 2),
    Sketcher.Constraint("Vertical", 22, 2, 25, 2),
    Sketcher.Constraint("Vertical", 27, 2, 28, 2),
    Sketcher.Constraint("Vertical", 26, 2, 29, 2),
    Sketcher.Constraint("Vertical", 31, 2, 32, 2),
    Sketcher.Constraint("Vertical", 30, 2, 33, 2),
    Sketcher.Constraint("Vertical", 35, 2, 36, 2),
    Sketcher.Constraint("Vertical", 34, 2, 37, 2),
    Sketcher.Constraint("Vertical", 39, 2, 40, 2),
    Sketcher.Constraint("Vertical", 38, 2, 41, 2),
    Sketcher.Constraint("Equal", 2, 4),
    Sketcher.Constraint("Equal", 6, 8),
    Sketcher.Constraint("Equal", 10, 12),
    Sketcher.Constraint("Equal", 14, 16),
    Sketcher.Constraint("Equal", 18, 20),
    Sketcher.Constraint("Equal", 22, 24),
    Sketcher.Constraint("Equal", 26, 28),
    Sketcher.Constraint("Equal", 30, 32),
    Sketcher.Constraint("Equal", 34, 36),
    Sketcher.Constraint("Equal", 38, 40),
    Sketcher.Constraint("DistanceX", 1, 1, 1, 2, 1.2),
    Sketcher.Constraint("DistanceY", 0, 2, 0, 1, 0.5),
    Sketcher.Constraint("DistanceX", -1, 1, 1, 2, 60.0),
    Sketcher.Constraint("DistanceY", -1, 1, 6, 2, 45.0),
    Sketcher.Constraint("DistanceY", -1, 1, 8, 2, 39.0),
    Sketcher.Constraint("DistanceY", -1, 1, 14, 2, 34.0),
    Sketcher.Constraint("DistanceY", -1, 1, 16, 2, 28.0),
    Sketcher.Constraint("DistanceY", -1, 1, 22, 2, 23.0),
    Sketcher.Constraint("DistanceY", -1, 1, 26, 2, 61.0),
    Sketcher.Constraint("DistanceY", -1, 1, 28, 2, 55.0),
    Sketcher.Constraint("DistanceY", -1, 1, 32, 2, 66.0),
    Sketcher.Constraint("DistanceY", -1, 1, 38, 2, 72.0),
    Sketcher.Constraint("DistanceY", -1, 1, 40, 2, 77.0),
    Sketcher.Constraint("DistanceY", -1, 1, 0, 2, 49.75),
])
sketch7.setExpression("Constraints[118]", "Params.sketch7_width")
sketch7.setExpression("Constraints[119]", "Params.sketch7_height")
pad5 = body.newObject("PartDesign::Pad", "Pad004")
pad5.Profile = sketch7
pad5.Type = "UpToLast"

# Sketch on YZ plane
sketch8 = body.newObject("Sketcher::SketchObject", "Sketch007")
sketch8.AttachmentSupport = (doc.getObject("YZ_Plane"), [""])
sketch8.MapMode = "FlatFace"
sketch8.addGeometry([
    Part.LineSegment(Vector(60, 14, 0), Vector(60, 10, 0)),
    Part.LineSegment(Vector(60, 10, 0), Vector(40, 10, 0)),
    Part.LineSegment(Vector(40, 10, 0), Vector(40, 14, 0)),
    Part.LineSegment(Vector(40, 14, 0), Vector(60, 14, 0)),
], False)
sketch8.addConstraint([
    Sketcher.Constraint("Coincident", 0, 2, 1, 1),
    Sketcher.Constraint("Coincident", 1, 2, 2, 1),
    Sketcher.Constraint("Coincident", 2, 2, 3, 1),
    Sketcher.Constraint("Coincident", 3, 2, 0, 1),
    Sketcher.Constraint("Vertical", 0),
    Sketcher.Constraint("Horizontal", 1),
    Sketcher.Constraint("Vertical", 2),
    Sketcher.Constraint("Horizontal", 3),
    Sketcher.Constraint("DistanceX", 1, 2, 1, 1, 20.0),
    Sketcher.Constraint("DistanceY", 0, 2, 0, 1, 5.0),
    Sketcher.Constraint("DistanceX", -1, 1, 0, 2, 60.0),
    Sketcher.Constraint("DistanceY", -1, 1, 0, 2, 9.5),
])
sketch8.setExpression("Constraints[8]", "Params.sketch8_width")
sketch8.setExpression("Constraints[9]", "Params.sketch8_height")
pocket3 = body.newObject("PartDesign::Pocket", "Pocket002")
pocket3.Profile = sketch8
pocket3.setExpression("Length", "Params.pocket3_length")
pocket3.Reversed = True

# Sketch on XY plane
sketch9 = body.newObject("Sketcher::SketchObject", "Sketch008")
sketch9.AttachmentSupport = (doc.getObject("XY_Plane"), [""])
sketch9.MapMode = "FlatFace"
sketch9.AttachmentOffset = App.Placement(Vector(0, 0, 9.5), App.Rotation())
sketch9.addGeometry([
    Part.LineSegment(Vector(0, 50.2, 0), Vector(0, 49.8, 0)),  # 0
    Part.LineSegment(Vector(0, 49.8, 0), Vector(1.2, 49.8, 0)),  # 1
    Part.LineSegment(Vector(1.2, 49.8, 0), Vector(1.2, 50.2, 0)),  # 2
    Part.LineSegment(Vector(1.2, 50.2, 0), Vector(0, 50.2, 0)),  # 3
    Part.LineSegment(Vector(0, 44.8, 0), Vector(0, 44.2, 0)),  # 4
    Part.LineSegment(Vector(0, 44.2, 0), Vector(1.2, 44.2, 0)),  # 5
    Part.LineSegment(Vector(1.2, 44.2, 0), Vector(1.2, 44.8, 0)),  # 6
    Part.LineSegment(Vector(1.2, 44.8, 0), Vector(0, 44.8, 0)),  # 7
    Part.LineSegment(Vector(0, 55.8, 0), Vector(0, 55.2, 0)),  # 8
    Part.LineSegment(Vector(0, 55.2, 0), Vector(1.2, 55.2, 0)),  # 9
    Part.LineSegment(Vector(1.2, 55.2, 0), Vector(1.2, 55.8, 0)),  # 10
    Part.LineSegment(Vector(1.2, 55.8, 0), Vector(0, 55.8, 0)),  # 11
], False)
sketch9.addConstraint([
    Sketcher.Constraint("Coincident", 0, 2, 1, 1),
    Sketcher.Constraint("Coincident", 1, 2, 2, 1),
    Sketcher.Constraint("Coincident", 2, 2, 3, 1),
    Sketcher.Constraint("Coincident", 3, 2, 0, 1),
    Sketcher.Constraint("Coincident", 4, 2, 5, 1),
    Sketcher.Constraint("Coincident", 5, 2, 6, 1),
    Sketcher.Constraint("Coincident", 6, 2, 7, 1),
    Sketcher.Constraint("Coincident", 7, 2, 4, 1),
    Sketcher.Constraint("Coincident", 8, 2, 9, 1),
    Sketcher.Constraint("Coincident", 9, 2, 10, 1),
    Sketcher.Constraint("Coincident", 10, 2, 11, 1),
    Sketcher.Constraint("Coincident", 11, 2, 8, 1),
    Sketcher.Constraint("Vertical", 0),
    Sketcher.Constraint("Horizontal", 1),
    Sketcher.Constraint("Vertical", 2),
    Sketcher.Constraint("Horizontal", 3),
    Sketcher.Constraint("Vertical", 4),
    Sketcher.Constraint("Horizontal", 5),
    Sketcher.Constraint("Vertical", 6),
    Sketcher.Constraint("Horizontal", 7),
    Sketcher.Constraint("Vertical", 8),
    Sketcher.Constraint("Horizontal", 9),
    Sketcher.Constraint("Vertical", 10),
    Sketcher.Constraint("Horizontal", 11),
    Sketcher.Constraint("PointOnObject", 0, 2, -2),
    Sketcher.Constraint("PointOnObject", 4, 2, -2),
    Sketcher.Constraint("PointOnObject", 8, 2, -2),
    Sketcher.Constraint("Vertical", 2, 2, 5, 2),
    Sketcher.Constraint("Vertical", 6, 2, 9, 2),
    Sketcher.Constraint("Equal", 2, 4),
    Sketcher.Constraint("Equal", 6, 8),
    Sketcher.Constraint("DistanceX", 1, 1, 1, 2, 1.2),
    Sketcher.Constraint("DistanceY", 0, 2, 0, 1, 0.5),
    Sketcher.Constraint("DistanceY", 4, 2, 3, 2, 6.0),
    Sketcher.Constraint("DistanceY", 3, 2, 8, 2, 5.0),
    Sketcher.Constraint("DistanceY", -1, 1, 0, 2, 49.75),
])
sketch9.setExpression("Constraints[31]", "Params.sketch9_width")
sketch9.setExpression("Constraints[32]", "Params.sketch9_height")
pad6 = body.newObject("PartDesign::Pad", "Pad005")
pad6.Profile = sketch9
pad6.Type = "UpToLast"
body2 = doc.addObject("PartDesign::Body", "Body001")

# Sketch on XY plane
sketch10 = body2.newObject("Sketcher::SketchObject", "Sketch009")
sketch10.AttachmentSupport = (doc.getObject("XY_Plane001"), [""])
sketch10.MapMode = "FlatFace"
sketch10.AttachmentOffset = App.Placement(Vector(0, 0, 30), App.Rotation())
sketch10.addGeometry([
    Part.LineSegment(Vector(0, 90, 0), Vector(0, 10, 0)),
    Part.LineSegment(Vector(0, 10, 0), Vector(60, 10, 0)),
    Part.LineSegment(Vector(60, 10, 0), Vector(60, 90, 0)),
    Part.LineSegment(Vector(60, 90, 0), Vector(0, 90, 0)),
], False)
sketch10.addConstraint([
    Sketcher.Constraint("Coincident", 0, 2, 1, 1),
    Sketcher.Constraint("Coincident", 1, 2, 2, 1),
    Sketcher.Constraint("Coincident", 2, 2, 3, 1),
    Sketcher.Constraint("Coincident", 3, 2, 0, 1),
    Sketcher.Constraint("Vertical", 0),
    Sketcher.Constraint("Horizontal", 1),
    Sketcher.Constraint("Vertical", 2),
    Sketcher.Constraint("Horizontal", 3),
    Sketcher.Constraint("PointOnObject", 0, 2, -2),
    Sketcher.Constraint("DistanceX", 1, 1, 1, 2, 60.0),
    Sketcher.Constraint("DistanceY", 0, 2, 0, 1, 80.0),
    Sketcher.Constraint("DistanceY", -1, 1, 0, 2, 10.0),
])
sketch10.setExpression("Constraints[9]", "Params.sketch10_width")
sketch10.setExpression("Constraints[10]", "Params.sketch10_height")
pad7 = body2.newObject("PartDesign::Pad", "Pad006")
pad7.Profile = sketch10
pad7.setExpression("Length", "Params.pad7_length")

# Sketch on XY plane
sketch11 = body2.newObject("Sketcher::SketchObject", "Sketch010")
sketch11.AttachmentSupport = (doc.getObject("XY_Plane001"), [""])
sketch11.MapMode = "FlatFace"
sketch11.AttachmentOffset = App.Placement(Vector(0, 0, 30), App.Rotation())
sketch11.addGeometry([
    Part.LineSegment(Vector(1, 89, 0), Vector(1, 11, 0)),
    Part.LineSegment(Vector(1, 11, 0), Vector(59, 11, 0)),
    Part.LineSegment(Vector(59, 11, 0), Vector(59, 89, 0)),
    Part.LineSegment(Vector(59, 89, 0), Vector(1, 89, 0)),
], False)
sketch11.addConstraint([
    Sketcher.Constraint("Coincident", 0, 2, 1, 1),
    Sketcher.Constraint("Coincident", 1, 2, 2, 1),
    Sketcher.Constraint("Coincident", 2, 2, 3, 1),
    Sketcher.Constraint("Coincident", 3, 2, 0, 1),
    Sketcher.Constraint("Vertical", 0),
    Sketcher.Constraint("Horizontal", 1),
    Sketcher.Constraint("Vertical", 2),
    Sketcher.Constraint("Horizontal", 3),
    Sketcher.Constraint("DistanceX", 1, 1, 1, 2, 57.6),
    Sketcher.Constraint("DistanceY", 0, 2, 0, 1, 77.6),
    Sketcher.Constraint("DistanceX", -1, 1, 0, 2, 1.2),
    Sketcher.Constraint("DistanceY", -1, 1, 0, 2, 11.2),
])
sketch11.setExpression("Constraints[8]", "Params.sketch11_width")
sketch11.setExpression("Constraints[9]", "Params.sketch11_height")
pad8 = body2.newObject("PartDesign::Pad", "Pad007")
pad8.Profile = sketch11
pad8.setExpression("Length", "Params.pad8_length")
pad8.Reversed = True

doc.recompute()
